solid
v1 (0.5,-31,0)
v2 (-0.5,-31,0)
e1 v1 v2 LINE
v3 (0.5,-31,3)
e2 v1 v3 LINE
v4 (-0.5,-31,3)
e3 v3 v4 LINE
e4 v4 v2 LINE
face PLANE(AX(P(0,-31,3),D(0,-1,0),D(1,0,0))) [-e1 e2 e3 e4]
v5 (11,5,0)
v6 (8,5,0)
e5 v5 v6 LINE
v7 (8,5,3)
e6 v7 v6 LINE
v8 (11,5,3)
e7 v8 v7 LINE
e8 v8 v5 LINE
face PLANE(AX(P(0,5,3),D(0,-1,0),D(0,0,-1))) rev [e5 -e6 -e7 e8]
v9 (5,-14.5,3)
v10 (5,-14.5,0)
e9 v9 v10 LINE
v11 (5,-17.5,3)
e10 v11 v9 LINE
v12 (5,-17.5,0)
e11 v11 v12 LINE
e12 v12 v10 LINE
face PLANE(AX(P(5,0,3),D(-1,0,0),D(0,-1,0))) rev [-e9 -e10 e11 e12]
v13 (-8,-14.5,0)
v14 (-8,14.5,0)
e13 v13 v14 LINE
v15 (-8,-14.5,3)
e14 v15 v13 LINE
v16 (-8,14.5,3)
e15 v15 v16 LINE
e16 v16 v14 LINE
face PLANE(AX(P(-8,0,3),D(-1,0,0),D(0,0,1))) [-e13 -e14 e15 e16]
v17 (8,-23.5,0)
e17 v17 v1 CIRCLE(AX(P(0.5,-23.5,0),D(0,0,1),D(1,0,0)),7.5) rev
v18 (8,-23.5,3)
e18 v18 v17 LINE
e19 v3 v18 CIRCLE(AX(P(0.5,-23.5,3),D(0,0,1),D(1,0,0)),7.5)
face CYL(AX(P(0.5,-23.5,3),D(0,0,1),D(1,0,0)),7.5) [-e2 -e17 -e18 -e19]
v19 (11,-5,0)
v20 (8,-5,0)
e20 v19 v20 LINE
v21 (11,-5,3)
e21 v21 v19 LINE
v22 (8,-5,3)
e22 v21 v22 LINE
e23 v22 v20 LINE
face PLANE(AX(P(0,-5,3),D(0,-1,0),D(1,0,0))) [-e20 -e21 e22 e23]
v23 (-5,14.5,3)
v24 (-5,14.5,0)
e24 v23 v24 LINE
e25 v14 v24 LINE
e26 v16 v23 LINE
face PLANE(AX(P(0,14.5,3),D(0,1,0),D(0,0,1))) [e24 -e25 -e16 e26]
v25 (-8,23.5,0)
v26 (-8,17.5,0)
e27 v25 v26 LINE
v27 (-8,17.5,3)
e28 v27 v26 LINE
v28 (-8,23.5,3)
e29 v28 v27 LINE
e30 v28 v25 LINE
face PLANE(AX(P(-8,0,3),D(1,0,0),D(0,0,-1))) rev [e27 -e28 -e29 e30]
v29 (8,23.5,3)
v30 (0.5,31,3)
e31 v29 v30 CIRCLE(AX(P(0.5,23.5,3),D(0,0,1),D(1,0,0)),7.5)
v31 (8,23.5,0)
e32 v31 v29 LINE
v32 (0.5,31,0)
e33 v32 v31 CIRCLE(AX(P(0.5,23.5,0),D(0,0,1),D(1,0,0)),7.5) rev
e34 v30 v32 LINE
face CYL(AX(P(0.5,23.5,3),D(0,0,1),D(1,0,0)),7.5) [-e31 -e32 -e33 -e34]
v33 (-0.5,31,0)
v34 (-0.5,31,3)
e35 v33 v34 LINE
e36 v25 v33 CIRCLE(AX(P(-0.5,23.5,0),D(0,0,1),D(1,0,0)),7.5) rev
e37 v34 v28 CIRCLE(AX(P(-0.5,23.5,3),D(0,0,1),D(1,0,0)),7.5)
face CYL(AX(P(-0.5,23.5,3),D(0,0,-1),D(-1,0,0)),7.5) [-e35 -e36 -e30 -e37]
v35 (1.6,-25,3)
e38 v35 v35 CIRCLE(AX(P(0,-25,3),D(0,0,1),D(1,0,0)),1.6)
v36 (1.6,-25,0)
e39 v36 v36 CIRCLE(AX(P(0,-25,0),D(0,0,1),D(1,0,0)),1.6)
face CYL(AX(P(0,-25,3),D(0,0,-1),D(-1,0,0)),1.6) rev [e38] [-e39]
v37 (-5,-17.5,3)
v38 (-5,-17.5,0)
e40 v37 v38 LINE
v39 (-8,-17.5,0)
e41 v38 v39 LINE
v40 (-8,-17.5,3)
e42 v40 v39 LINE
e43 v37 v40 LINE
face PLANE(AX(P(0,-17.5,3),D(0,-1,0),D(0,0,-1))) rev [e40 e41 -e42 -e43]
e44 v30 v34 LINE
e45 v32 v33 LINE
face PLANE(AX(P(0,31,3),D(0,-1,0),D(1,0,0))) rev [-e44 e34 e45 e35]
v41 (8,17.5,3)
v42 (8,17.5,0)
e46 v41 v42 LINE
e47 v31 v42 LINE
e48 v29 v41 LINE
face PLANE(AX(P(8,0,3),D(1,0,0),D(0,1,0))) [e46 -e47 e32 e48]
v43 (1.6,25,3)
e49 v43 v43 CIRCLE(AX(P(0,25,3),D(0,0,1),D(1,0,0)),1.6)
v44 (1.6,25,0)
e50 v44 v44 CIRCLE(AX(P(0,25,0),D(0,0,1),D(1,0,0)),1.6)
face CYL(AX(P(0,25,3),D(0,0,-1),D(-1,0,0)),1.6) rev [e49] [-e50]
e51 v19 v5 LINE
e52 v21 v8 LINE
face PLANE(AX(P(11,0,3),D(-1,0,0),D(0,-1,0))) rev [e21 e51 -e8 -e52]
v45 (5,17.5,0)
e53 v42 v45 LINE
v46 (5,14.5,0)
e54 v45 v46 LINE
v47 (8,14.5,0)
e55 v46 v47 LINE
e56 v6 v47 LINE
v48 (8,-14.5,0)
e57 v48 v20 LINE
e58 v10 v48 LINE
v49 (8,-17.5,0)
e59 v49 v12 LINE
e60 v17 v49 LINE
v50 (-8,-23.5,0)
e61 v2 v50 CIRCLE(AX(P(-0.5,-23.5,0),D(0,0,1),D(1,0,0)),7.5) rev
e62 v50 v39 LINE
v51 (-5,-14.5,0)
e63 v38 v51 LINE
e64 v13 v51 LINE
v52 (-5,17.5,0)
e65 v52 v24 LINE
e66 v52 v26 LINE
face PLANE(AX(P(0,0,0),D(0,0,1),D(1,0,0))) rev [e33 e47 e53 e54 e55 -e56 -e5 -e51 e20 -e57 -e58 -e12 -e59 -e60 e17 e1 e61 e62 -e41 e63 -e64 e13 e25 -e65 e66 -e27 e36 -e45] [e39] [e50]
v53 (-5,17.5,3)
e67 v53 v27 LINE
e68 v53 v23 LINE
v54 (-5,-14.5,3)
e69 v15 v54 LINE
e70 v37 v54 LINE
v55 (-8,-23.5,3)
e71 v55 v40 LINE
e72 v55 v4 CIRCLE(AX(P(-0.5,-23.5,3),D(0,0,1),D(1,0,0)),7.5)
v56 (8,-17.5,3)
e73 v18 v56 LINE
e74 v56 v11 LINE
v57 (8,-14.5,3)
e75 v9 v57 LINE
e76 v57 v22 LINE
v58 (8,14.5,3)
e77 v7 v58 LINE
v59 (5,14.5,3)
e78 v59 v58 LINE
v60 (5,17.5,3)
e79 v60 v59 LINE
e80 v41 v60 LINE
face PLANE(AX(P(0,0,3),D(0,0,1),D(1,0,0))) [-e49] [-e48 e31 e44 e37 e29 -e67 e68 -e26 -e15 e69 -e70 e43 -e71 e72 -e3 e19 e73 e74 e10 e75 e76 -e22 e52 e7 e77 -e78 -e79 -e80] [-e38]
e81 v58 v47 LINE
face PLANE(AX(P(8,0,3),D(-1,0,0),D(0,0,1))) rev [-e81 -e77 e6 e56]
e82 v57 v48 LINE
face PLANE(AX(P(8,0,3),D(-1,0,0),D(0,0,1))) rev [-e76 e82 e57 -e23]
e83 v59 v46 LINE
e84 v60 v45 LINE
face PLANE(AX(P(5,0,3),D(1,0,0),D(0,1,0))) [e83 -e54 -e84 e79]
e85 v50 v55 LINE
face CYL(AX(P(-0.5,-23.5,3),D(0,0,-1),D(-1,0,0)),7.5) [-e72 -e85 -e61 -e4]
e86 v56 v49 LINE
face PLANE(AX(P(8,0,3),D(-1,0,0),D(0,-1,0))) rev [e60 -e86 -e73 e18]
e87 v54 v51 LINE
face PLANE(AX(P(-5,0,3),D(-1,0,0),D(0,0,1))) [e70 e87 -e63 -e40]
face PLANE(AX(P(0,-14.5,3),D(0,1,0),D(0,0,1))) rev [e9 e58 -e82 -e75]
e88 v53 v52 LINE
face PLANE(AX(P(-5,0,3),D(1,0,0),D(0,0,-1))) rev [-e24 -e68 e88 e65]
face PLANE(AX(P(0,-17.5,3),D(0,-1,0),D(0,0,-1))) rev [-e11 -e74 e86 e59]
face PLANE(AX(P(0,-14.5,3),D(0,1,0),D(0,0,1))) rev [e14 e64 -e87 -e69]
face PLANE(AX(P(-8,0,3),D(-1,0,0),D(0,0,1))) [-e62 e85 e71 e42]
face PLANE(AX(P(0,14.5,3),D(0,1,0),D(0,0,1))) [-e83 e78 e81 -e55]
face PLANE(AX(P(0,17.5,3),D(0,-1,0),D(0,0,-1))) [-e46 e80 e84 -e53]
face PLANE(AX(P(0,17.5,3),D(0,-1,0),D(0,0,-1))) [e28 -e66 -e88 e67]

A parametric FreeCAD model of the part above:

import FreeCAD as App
import Part
import Sketcher

V = App.Vector


def edges_at(feature, points):
    """Names of the edges that pass closest to the given points."""
    edges = feature.Shape.Edges
    near = lambda p: min(range(len(edges)), key=lambda i: edges[i].distToShape(Part.Vertex(*p))[0])
    return sorted({f"Edge{near(p) + 1}" for p in points})


def add_polygon(sketch, points):
    """Adds a closed chain of lines whose ends are joined by coincident constraints."""
    first, n = sketch.GeometryCount, len(points)
    for a, b in zip(points, points[1:] + points[:1]):
        sketch.addGeometry(Part.LineSegment(App.Vector(*a, 0), App.Vector(*b, 0)), False)
    for i in range(n):
        sketch.addConstraint(Sketcher.Constraint("Coincident", first + i, 2, first + (i + 1) % n, 1))

doc = App.newDocument("Part")
body = doc.addObject("PartDesign::Body", "Body")

# Sketch on XY plane
sketch1 = doc.addObject("Sketcher::SketchObject", "Sketch")
body.addObject(sketch1)
sketch1.AttachmentSupport = (doc.XY_Plane, [""])
sketch1.MapMode = "FlatFace"
add_polygon(sketch1, [(-8, 14.5), (-8, -14.5), (-5, -14.5), (-5, -17.5), (-8, -17.5), (-8, -31), (8, -31), (8, -17.5), (5, -17.5), (5, -14.5), (8, -14.5), (8, -5), (11, -5), (11, 5), (8, 5), (8, 14.5), (5, 14.5), (5, 17.5), (8, 17.5), (8, 31), (-8, 31), (-8, 17.5), (-5, 17.5), (-5, 14.5)])  # lines 0-23
sketch1.addGeometry(Part.Circle(V(0, -25, 0), V(0, 0, 1), 1.6), False)  # 24
sketch1.addGeometry(Part.Circle(V(0, 25, 0), V(0, 0, 1), 1.6), False)  # 25
sketch1.addConstraint([
    Sketcher.Constraint("Vertical", 0),
    Sketcher.Constraint("Horizontal", 1),
    Sketcher.Constraint("Vertical", 2),
    Sketcher.Constraint("Horizontal", 3),
    Sketcher.Constraint("Vertical", 4),
    Sketcher.Constraint("Horizontal", 5),
    Sketcher.Constraint("Vertical", 6),
    Sketcher.Constraint("Horizontal", 7),
    Sketcher.Constraint("Vertical", 8),
    Sketcher.Constraint("Horizontal", 9),
    Sketcher.Constraint("Vertical", 10),
    Sketcher.Constraint("Horizontal", 11),
    Sketcher.Constraint("Vertical", 12),
    Sketcher.Constraint("Horizontal", 13),
    Sketcher.Constraint("Vertical", 14),
    Sketcher.Constraint("Horizontal", 15),
    Sketcher.Constraint("Vertical", 16),
    Sketcher.Constraint("Horizontal", 17),
    Sketcher.Constraint("Vertical", 18),
    Sketcher.Constraint("Horizontal", 19),
    Sketcher.Constraint("Vertical", 20),
    Sketcher.Constraint("Horizontal", 21),
    Sketcher.Constraint("Vertical", 22),
    Sketcher.Constraint("Horizontal", 23),
    Sketcher.Constraint("Equal", 24, 25),
    Sketcher.Constraint("Symmetric", 24, 3, 25, 3, -1, 1),
    Sketcher.Constraint("Symmetric", 0, 2, 14, 2, -1, 1),
    Sketcher.Constraint("Symmetric", 2, 2, 16, 2, -1, 1),
    Sketcher.Constraint("Symmetric", 4, 2, 18, 2, -1, 1),
    Sketcher.Constraint("Symmetric", 6, 2, 20, 2, -1, 1),
    Sketcher.Constraint("Symmetric", 8, 2, 22, 2, -1, 1),
    Sketcher.Constraint("Symmetric", 3, 2, 6, 2, -2),
    Sketcher.Constraint("Symmetric", 1, 2, 8, 2, -2),
    Sketcher.Constraint("Symmetric", 10, 2, 13, 2, -1),
    Sketcher.Constraint("PointOnObject", 24, 3, -2),
    Sketcher.Constraint("Vertical", 0, 2, 3, 2),
    Sketcher.Constraint("Equal", 9, 11),
    Sketcher.Constraint("Equal", 23, 2),
    Sketcher.Constraint("Diameter", 24, 3.2),
    Sketcher.Constraint("DistanceX", 1, 1, 1, 2, 3.0),
    Sketcher.Constraint("DistanceX", 5, 1, 5, 2, 16.0),
    Sketcher.Constraint("DistanceY", 0, 2, 0, 1, 29.0),
    Sketcher.Constraint("DistanceY", 12, 1, 12, 2, 10.0),
    Sketcher.Constraint("DistanceY", 4, 2, 4, 1, 13.5),
    Sketcher.Constraint("DistanceY", 24, 3, -1, 1, 25.0),
])
pad1 = doc.addObject("PartDesign::Pad", "Pad")
body.addObject(pad1)
pad1.Profile = sketch1
pad1.Length = 3
doc.recompute()

fillet = doc.addObject("PartDesign::Fillet", "Fillet")
body.addObject(fillet)
fillet.Base = (pad1, edges_at(pad1, [
    (-8, 31, 1.5),
    (8, 31, 1.5),
    (8, -31, 1.5),
    (-8, -31, 1.5),
]))
fillet.Radius = 7.5

doc.recompute()
